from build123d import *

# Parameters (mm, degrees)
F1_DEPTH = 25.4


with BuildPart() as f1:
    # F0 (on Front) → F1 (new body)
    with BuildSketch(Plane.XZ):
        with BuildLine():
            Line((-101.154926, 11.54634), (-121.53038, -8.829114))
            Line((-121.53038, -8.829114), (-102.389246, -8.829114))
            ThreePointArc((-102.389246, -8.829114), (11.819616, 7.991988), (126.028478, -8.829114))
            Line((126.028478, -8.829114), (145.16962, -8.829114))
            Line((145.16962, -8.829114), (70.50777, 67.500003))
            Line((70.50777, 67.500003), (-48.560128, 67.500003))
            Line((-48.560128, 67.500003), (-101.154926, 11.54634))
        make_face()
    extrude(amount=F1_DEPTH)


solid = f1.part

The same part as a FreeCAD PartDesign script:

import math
import FreeCAD as App
import Part
import Sketcher

V = App.Vector
Q = App.Units.Quantity

doc = App.newDocument("Part")
body = doc.addObject("PartDesign::Body", "Body")

# Sketch on XZ plane
sketch1 = body.newObject("Sketcher::SketchObject", "Sketch")
sketch1.AttachmentSupport = (doc.getObject("XZ_Plane"), [""])
sketch1.MapMode = "FlatFace"
sketch1.addGeometry([
    Part.LineSegment(V(-101, 12, 0), V(-122, -9, 0)),  # 0
    Part.LineSegment(V(-122, -9, 0), V(-102, -9, 0)),  # 1
    Part.ArcOfCircle(Part.Circle(V(12, -388, 0), V(0, 0, 1), 396), math.radians(73), math.radians(107)),  # 2
    Part.LineSegment(V(126, -9, 0), V(145, -9, 0)),  # 3
    Part.LineSegment(V(145, -9, 0), V(71, 68, 0)),  # 4
    Part.LineSegment(V(71, 68, 0), V(-49, 68, 0)),  # 5
    Part.LineSegment(V(-49, 68, 0), V(-101, 12, 0)),  # 6
], False)
sketch1.addConstraint([
    Sketcher.Constraint("Coincident", 0, 2, 1, 1),
    Sketcher.Constraint("Coincident", 1, 2, 2, 2),
    Sketcher.Constraint("Coincident", 2, 1, 3, 1),
    Sketcher.Constraint("Coincident", 3, 2, 4, 1),
    Sketcher.Constraint("Coincident", 4, 2, 5, 1),
    Sketcher.Constraint("Coincident", 5, 2, 6, 1),
    Sketcher.Constraint("Coincident", 6, 2, 0, 1),
    Sketcher.Constraint("Horizontal", 1),
    Sketcher.Constraint("Horizontal", 3),
    Sketcher.Constraint("Horizontal", 5),
    Sketcher.Constraint("Horizontal", 1, 2, 2, 1),
    Sketcher.Constraint("Angle", 0, Q("-135 deg")),
    Sketcher.Constraint("DistanceX", 0, 2, 3, 2, Q("10.5 in")),
    Sketcher.Constraint("DistanceX", 0, 2, 2, 3, Q("5.2499998 in")),
    Sketcher.Constraint("Radius", 2, Q("396.127841 mm")),
    Sketcher.Constraint("DistanceY", 6, 2, 5, 2, Q("2.2029001 in")),
    Sketcher.Constraint("DistanceX", 6, 2, 5, 2, Q("52.594798 mm")),
    Sketcher.Constraint("DistanceX", 1, 1, 1, 2, Q("19.141134 mm")),
    Sketcher.Constraint("DistanceX", 5, 2, 5, 1, Q("119.067898 mm")),
    Sketcher.Constraint("DistanceX", 0, 2, -1, 1, Q("121.53038 mm")),
    Sketcher.Constraint("DistanceX", -1, 1, 4, 2, Q("70.50777 mm")),
    Sketcher.Constraint("DistanceY", -1, 1, 6, 2, Q("11.54634 mm")),
])
pad1 = body.newObject("PartDesign::Pad", "Pad")
pad1.Profile = sketch1
pad1.Length = Q("1 in")

doc.recompute()
